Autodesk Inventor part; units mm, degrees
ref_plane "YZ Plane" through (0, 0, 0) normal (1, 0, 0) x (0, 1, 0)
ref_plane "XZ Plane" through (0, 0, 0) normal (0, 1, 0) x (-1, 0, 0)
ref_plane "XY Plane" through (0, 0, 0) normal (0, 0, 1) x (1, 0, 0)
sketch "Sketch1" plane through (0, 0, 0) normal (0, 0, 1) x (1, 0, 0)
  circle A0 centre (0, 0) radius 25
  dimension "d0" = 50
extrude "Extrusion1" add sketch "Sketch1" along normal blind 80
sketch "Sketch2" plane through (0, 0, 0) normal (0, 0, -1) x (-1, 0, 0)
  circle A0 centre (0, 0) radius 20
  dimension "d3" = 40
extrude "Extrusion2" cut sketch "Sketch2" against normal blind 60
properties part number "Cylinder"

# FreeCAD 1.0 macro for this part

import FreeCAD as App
import Part
import Sketcher
from FreeCAD import Vector
Q = App.Units.Quantity

doc = App.newDocument("Part")
params = doc.addObject("Spreadsheet::Sheet", "Params")
for row, (alias, value) in enumerate([
    ("sketch1_diameter", "50 mm"),
    ("pad1_length", "80 mm"),
    ("sketch2_diameter", "40 mm"),
    ("pocket1_length", "60 mm"),
], start=1):
    params.set(f"A{row}", alias)
    params.set(f"B{row}", "=" + value)
    params.setAlias(f"B{row}", alias)

body = doc.addObject("PartDesign::Body", "Body")

# Sketch on XY plane
sketch1 = doc.addObject("Sketcher::SketchObject", "Sketch")
body.addObject(sketch1)
sketch1.AttachmentSupport = (doc.XY_Plane, [""])
sketch1.MapMode = "FlatFace"
sketch1.addGeometry(Part.Circle(Vector(0, 0, 0), Vector(0, 0, 1), 25), False)
sketch1.addConstraint([
    Sketcher.Constraint("Coincident", 0, 3, -1, 1),
    Sketcher.Constraint("Diameter", 0, Q("50 mm")),
])
sketch1.setExpression("Constraints[1]", "Params.sketch1_diameter")
pad1 = doc.addObject("PartDesign::Pad", "Pad")
body.addObject(pad1)
pad1.Profile = sketch1
pad1.setExpression("Length", "Params.pad1_length")

# Sketch on XY plane
sketch2 = doc.addObject("Sketcher::SketchObject", "Sketch001")
body.addObject(sketch2)
sketch2.AttachmentSupport = (doc.XY_Plane, [""])
sketch2.MapMode = "FlatFace"
sketch2.addGeometry(Part.Circle(Vector(0, 0, 0), Vector(0, 0, 1), 20), False)
sketch2.addConstraint([
    Sketcher.Constraint("Coincident", 0, 3, -1, 1),
    Sketcher.Constraint("Diameter", 0, Q("40 mm")),
])
sketch2.setExpression("Constraints[1]", "Params.sketch2_diameter")
pocket1 = doc.addObject("PartDesign::Pocket", "Pocket")
body.addObject(pocket1)
pocket1.Profile = sketch2
pocket1.setExpression("Length", "Params.pocket1_length")
pocket1.Reversed = True

doc.recompute()
